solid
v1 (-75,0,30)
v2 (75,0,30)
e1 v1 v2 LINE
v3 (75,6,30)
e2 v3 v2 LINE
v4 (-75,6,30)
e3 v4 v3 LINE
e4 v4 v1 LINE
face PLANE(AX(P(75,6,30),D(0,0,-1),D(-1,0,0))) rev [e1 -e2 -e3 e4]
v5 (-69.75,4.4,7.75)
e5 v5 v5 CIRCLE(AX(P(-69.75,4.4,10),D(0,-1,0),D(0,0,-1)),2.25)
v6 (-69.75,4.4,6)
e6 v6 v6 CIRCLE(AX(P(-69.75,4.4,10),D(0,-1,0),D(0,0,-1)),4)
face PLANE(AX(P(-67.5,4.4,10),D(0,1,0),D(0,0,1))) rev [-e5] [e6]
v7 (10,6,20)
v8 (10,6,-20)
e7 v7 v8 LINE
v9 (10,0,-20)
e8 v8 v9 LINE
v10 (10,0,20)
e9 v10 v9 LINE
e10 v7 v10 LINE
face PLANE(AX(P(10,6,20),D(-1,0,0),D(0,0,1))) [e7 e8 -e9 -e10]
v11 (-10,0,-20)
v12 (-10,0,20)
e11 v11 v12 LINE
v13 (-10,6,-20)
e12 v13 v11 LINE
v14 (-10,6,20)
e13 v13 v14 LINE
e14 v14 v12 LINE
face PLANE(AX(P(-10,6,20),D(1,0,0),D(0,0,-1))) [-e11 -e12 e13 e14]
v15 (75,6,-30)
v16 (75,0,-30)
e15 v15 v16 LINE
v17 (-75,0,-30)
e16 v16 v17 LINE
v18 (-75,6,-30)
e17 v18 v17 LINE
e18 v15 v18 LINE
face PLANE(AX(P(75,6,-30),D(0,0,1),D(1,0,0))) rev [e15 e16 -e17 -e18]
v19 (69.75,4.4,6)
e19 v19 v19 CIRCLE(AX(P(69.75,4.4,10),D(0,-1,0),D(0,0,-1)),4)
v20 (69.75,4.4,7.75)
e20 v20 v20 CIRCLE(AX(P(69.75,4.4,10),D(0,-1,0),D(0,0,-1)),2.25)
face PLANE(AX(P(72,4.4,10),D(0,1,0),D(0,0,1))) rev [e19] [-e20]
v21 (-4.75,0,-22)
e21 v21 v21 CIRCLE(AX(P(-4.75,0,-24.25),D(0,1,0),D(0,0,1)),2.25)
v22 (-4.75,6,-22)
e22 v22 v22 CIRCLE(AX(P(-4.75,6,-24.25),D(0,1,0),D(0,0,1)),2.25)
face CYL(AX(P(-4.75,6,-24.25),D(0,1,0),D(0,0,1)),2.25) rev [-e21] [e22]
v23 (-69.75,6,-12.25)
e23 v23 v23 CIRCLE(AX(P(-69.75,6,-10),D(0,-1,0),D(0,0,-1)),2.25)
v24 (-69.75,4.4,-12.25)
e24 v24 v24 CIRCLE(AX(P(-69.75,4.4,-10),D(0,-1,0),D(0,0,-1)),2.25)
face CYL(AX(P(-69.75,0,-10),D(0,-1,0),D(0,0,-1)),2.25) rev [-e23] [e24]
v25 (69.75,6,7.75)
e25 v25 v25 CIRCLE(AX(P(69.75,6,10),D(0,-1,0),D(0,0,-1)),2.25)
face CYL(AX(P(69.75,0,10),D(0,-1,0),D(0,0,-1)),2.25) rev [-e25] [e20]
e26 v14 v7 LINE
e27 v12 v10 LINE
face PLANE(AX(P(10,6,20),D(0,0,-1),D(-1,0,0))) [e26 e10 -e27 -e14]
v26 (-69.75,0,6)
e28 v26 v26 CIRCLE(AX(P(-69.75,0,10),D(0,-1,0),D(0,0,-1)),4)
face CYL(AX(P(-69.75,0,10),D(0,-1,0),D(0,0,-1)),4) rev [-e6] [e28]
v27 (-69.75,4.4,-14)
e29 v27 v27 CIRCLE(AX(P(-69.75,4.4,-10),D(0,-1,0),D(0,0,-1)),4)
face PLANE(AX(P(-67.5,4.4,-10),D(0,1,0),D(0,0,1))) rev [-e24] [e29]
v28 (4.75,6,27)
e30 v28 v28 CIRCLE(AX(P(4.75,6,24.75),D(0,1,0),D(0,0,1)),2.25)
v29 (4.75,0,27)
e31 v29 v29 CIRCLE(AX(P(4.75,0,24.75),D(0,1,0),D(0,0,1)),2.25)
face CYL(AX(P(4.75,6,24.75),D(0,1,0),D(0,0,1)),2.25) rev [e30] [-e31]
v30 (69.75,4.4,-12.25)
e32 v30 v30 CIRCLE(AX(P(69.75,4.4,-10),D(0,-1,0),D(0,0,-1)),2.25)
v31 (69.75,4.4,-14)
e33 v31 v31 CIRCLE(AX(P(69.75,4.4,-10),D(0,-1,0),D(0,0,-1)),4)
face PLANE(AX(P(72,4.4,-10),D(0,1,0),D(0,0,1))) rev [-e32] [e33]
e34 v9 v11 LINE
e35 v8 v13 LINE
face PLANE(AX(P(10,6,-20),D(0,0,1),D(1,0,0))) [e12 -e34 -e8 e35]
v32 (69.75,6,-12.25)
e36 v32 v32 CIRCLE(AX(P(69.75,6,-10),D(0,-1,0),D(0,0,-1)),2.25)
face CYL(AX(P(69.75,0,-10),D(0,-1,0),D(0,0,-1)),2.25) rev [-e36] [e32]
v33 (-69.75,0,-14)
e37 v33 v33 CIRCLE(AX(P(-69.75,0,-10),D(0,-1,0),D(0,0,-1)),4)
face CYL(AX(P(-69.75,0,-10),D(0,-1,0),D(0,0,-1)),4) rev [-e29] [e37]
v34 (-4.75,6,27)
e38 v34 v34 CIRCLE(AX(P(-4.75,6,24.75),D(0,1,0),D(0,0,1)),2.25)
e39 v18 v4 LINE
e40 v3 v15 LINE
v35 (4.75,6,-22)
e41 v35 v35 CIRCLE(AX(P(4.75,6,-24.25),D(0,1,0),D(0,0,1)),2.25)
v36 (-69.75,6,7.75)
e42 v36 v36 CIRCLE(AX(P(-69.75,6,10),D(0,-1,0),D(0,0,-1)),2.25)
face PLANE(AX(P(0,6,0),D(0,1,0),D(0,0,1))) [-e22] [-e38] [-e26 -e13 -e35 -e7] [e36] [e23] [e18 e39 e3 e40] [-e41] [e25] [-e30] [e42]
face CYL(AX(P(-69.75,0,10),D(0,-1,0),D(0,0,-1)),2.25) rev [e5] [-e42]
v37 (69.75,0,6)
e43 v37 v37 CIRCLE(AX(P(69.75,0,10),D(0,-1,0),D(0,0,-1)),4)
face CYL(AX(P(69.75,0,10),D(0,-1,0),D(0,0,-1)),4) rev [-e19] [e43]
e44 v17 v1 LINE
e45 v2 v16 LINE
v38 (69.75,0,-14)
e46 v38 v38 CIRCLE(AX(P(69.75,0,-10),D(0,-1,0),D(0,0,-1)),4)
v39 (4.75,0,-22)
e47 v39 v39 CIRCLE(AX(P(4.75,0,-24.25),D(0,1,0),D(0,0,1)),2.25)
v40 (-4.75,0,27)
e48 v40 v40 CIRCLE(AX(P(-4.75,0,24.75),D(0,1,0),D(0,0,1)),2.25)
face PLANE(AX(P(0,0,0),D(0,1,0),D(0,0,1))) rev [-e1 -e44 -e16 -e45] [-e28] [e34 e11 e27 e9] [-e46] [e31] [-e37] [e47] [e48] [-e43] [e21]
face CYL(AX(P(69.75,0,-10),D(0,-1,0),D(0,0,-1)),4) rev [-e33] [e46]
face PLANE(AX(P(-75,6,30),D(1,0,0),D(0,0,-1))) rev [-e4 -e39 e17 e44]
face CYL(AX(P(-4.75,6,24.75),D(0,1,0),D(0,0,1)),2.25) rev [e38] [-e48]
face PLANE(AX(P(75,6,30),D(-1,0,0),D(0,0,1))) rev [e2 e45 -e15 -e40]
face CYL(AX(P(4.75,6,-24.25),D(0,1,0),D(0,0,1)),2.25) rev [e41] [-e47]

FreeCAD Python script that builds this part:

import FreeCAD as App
import Part
import Sketcher
from FreeCAD import Vector
Q = App.Units.Quantity


def add_polygon(sketch, points):
    """Adds a closed chain of lines whose ends are joined by coincident constraints."""
    first, n = sketch.GeometryCount, len(points)
    for a, b in zip(points, points[1:] + points[:1]):
        sketch.addGeometry(Part.LineSegment(App.Vector(*a, 0), App.Vector(*b, 0)), False)
    for i in range(n):
        sketch.addConstraint(Sketcher.Constraint("Coincident", first + i, 2, first + (i + 1) % n, 1))

doc = App.newDocument("Part")
body = doc.addObject("PartDesign::Body", "Body")

sketch1 = body.newObject("Sketcher::SketchObject", "Sketch")
sketch1.AttachmentSupport = (doc.getObject("XZ_Plane"), [""])
sketch1.MapMode = "FlatFace"
add_polygon(sketch1, [(-75, -30), (-75, 30), (75, 30), (75, -30)])
add_polygon(sketch1, [(10, 20), (-10, 20), (-10, -20), (10, -20)])
sketch1.addConstraint([
    Sketcher.Constraint("Vertical", 0),
    Sketcher.Constraint("Horizontal", 1),
    Sketcher.Constraint("Vertical", 2),
    Sketcher.Constraint("Horizontal", 3),
    Sketcher.Constraint("Horizontal", 4),
    Sketcher.Constraint("Vertical", 5),
    Sketcher.Constraint("Horizontal", 6),
    Sketcher.Constraint("Vertical", 7),
    Sketcher.Constraint("Symmetric", 0, 2, 2, 2, -1, 1),
    Sketcher.Constraint("Symmetric", 4, 2, 6, 2, -1, 1),
    Sketcher.Constraint("DistanceX", 1, 1, 1, 2, Q("150 mm")),
    Sketcher.Constraint("DistanceX", 4, 2, 4, 1, Q("20 mm")),
    Sketcher.Constraint("DistanceY", 0, 1, 0, 2, Q("60 mm")),
    Sketcher.Constraint("DistanceY", 5, 2, 5, 1, Q("40 mm")),
])
pad1 = body.newObject("PartDesign::Pad", "Pad")
pad1.Profile = sketch1
pad1.Length = 6
pad1.Reversed = True

sketch2 = body.newObject("Sketcher::SketchObject", "Sketch001")
sketch2.AttachmentSupport = (doc.getObject("XZ_Plane"), [""])
sketch2.MapMode = "FlatFace"
sketch2.addGeometry([
    Part.Circle(Vector(69.8, 10, 0), Vector(0, 0, 1), 2.2),
    Part.Circle(Vector(69.8, -10, 0), Vector(0, 0, 1), 2.2),
], False)
sketch2.addConstraint([
    Sketcher.Constraint("Equal", 0, 1),
    Sketcher.Constraint("Symmetric", 0, 3, 1, 3, -1),
    Sketcher.Constraint("Diameter", 0, Q("4.5 mm")),
    Sketcher.Constraint("DistanceY", -1, 1, 0, 3, Q("10 mm")),
    Sketcher.Constraint("DistanceX", -1, 1, 0, 3, Q("69.75 mm")),
])
doc.recompute()
hole = body.newObject("PartDesign::Hole", "Hole")
hole.Profile = sketch2
hole.ThreadType = "None"
hole.Diameter = 4.5
hole.DepthType = "ThroughAll"
hole.HoleCutType = "Counterbore"
hole.HoleCutDiameter = 8
hole.HoleCutDepth = 4.4
doc.recompute()

mirrored = body.newObject("PartDesign::Mirrored", "Mirrored")
mirrored.Originals = [hole]
mirrored.MirrorPlane = (doc.getObject("YZ_Plane"), [""])
body.Tip = mirrored

sketch3 = body.newObject("Sketcher::SketchObject", "Sketch002")
sketch3.AttachmentSupport = (doc.getObject("XZ_Plane"), [""])
sketch3.MapMode = "FlatFace"
sketch3.AttachmentOffset = App.Placement(Vector(0, 0, -6), App.Rotation())
sketch3.addGeometry([
    Part.Circle(Vector(-4.8, 24.8, 0), Vector(0, 0, 1), 2.2),
    Part.Circle(Vector(4.8, 24.8, 0), Vector(0, 0, 1), 2.2),
    Part.Circle(Vector(4.8, -24.2, 0), Vector(0, 0, 1), 2.2),
    Part.Circle(Vector(-4.8, -24.2, 0), Vector(0, 0, 1), 2.2),
], False)
sketch3.addConstraint([
    Sketcher.Constraint("Equal", 0, 1),
    Sketcher.Constraint("Equal", 1, 2),
    Sketcher.Constraint("Equal", 2, 3),
    Sketcher.Constraint("Symmetric", 0, 3, 1, 3, -2),
    Sketcher.Constraint("Symmetric", 2, 3, 3, 3, -2),
    Sketcher.Constraint("Vertical", 1, 3, 2, 3),
    Sketcher.Constraint("Diameter", 0, Q("4.5 mm")),
    Sketcher.Constraint("DistanceY", 2, 3, 1, 3, Q("49 mm")),
    Sketcher.Constraint("DistanceX", 0, 3, 1, 3, Q("9.5 mm")),
    Sketcher.Constraint("DistanceY", -1, 1, 0, 3, Q("24.75 mm")),
])
doc.recompute()
hole2 = body.newObject("PartDesign::Hole", "Hole001")
hole2.Profile = sketch3
hole2.ThreadType = "None"
hole2.Diameter = 4.5
hole2.DepthType = "Dimension"
hole2.Depth = 8.499
hole2.DrillPoint = "Flat"
hole2.Reversed = True

doc.recompute()
